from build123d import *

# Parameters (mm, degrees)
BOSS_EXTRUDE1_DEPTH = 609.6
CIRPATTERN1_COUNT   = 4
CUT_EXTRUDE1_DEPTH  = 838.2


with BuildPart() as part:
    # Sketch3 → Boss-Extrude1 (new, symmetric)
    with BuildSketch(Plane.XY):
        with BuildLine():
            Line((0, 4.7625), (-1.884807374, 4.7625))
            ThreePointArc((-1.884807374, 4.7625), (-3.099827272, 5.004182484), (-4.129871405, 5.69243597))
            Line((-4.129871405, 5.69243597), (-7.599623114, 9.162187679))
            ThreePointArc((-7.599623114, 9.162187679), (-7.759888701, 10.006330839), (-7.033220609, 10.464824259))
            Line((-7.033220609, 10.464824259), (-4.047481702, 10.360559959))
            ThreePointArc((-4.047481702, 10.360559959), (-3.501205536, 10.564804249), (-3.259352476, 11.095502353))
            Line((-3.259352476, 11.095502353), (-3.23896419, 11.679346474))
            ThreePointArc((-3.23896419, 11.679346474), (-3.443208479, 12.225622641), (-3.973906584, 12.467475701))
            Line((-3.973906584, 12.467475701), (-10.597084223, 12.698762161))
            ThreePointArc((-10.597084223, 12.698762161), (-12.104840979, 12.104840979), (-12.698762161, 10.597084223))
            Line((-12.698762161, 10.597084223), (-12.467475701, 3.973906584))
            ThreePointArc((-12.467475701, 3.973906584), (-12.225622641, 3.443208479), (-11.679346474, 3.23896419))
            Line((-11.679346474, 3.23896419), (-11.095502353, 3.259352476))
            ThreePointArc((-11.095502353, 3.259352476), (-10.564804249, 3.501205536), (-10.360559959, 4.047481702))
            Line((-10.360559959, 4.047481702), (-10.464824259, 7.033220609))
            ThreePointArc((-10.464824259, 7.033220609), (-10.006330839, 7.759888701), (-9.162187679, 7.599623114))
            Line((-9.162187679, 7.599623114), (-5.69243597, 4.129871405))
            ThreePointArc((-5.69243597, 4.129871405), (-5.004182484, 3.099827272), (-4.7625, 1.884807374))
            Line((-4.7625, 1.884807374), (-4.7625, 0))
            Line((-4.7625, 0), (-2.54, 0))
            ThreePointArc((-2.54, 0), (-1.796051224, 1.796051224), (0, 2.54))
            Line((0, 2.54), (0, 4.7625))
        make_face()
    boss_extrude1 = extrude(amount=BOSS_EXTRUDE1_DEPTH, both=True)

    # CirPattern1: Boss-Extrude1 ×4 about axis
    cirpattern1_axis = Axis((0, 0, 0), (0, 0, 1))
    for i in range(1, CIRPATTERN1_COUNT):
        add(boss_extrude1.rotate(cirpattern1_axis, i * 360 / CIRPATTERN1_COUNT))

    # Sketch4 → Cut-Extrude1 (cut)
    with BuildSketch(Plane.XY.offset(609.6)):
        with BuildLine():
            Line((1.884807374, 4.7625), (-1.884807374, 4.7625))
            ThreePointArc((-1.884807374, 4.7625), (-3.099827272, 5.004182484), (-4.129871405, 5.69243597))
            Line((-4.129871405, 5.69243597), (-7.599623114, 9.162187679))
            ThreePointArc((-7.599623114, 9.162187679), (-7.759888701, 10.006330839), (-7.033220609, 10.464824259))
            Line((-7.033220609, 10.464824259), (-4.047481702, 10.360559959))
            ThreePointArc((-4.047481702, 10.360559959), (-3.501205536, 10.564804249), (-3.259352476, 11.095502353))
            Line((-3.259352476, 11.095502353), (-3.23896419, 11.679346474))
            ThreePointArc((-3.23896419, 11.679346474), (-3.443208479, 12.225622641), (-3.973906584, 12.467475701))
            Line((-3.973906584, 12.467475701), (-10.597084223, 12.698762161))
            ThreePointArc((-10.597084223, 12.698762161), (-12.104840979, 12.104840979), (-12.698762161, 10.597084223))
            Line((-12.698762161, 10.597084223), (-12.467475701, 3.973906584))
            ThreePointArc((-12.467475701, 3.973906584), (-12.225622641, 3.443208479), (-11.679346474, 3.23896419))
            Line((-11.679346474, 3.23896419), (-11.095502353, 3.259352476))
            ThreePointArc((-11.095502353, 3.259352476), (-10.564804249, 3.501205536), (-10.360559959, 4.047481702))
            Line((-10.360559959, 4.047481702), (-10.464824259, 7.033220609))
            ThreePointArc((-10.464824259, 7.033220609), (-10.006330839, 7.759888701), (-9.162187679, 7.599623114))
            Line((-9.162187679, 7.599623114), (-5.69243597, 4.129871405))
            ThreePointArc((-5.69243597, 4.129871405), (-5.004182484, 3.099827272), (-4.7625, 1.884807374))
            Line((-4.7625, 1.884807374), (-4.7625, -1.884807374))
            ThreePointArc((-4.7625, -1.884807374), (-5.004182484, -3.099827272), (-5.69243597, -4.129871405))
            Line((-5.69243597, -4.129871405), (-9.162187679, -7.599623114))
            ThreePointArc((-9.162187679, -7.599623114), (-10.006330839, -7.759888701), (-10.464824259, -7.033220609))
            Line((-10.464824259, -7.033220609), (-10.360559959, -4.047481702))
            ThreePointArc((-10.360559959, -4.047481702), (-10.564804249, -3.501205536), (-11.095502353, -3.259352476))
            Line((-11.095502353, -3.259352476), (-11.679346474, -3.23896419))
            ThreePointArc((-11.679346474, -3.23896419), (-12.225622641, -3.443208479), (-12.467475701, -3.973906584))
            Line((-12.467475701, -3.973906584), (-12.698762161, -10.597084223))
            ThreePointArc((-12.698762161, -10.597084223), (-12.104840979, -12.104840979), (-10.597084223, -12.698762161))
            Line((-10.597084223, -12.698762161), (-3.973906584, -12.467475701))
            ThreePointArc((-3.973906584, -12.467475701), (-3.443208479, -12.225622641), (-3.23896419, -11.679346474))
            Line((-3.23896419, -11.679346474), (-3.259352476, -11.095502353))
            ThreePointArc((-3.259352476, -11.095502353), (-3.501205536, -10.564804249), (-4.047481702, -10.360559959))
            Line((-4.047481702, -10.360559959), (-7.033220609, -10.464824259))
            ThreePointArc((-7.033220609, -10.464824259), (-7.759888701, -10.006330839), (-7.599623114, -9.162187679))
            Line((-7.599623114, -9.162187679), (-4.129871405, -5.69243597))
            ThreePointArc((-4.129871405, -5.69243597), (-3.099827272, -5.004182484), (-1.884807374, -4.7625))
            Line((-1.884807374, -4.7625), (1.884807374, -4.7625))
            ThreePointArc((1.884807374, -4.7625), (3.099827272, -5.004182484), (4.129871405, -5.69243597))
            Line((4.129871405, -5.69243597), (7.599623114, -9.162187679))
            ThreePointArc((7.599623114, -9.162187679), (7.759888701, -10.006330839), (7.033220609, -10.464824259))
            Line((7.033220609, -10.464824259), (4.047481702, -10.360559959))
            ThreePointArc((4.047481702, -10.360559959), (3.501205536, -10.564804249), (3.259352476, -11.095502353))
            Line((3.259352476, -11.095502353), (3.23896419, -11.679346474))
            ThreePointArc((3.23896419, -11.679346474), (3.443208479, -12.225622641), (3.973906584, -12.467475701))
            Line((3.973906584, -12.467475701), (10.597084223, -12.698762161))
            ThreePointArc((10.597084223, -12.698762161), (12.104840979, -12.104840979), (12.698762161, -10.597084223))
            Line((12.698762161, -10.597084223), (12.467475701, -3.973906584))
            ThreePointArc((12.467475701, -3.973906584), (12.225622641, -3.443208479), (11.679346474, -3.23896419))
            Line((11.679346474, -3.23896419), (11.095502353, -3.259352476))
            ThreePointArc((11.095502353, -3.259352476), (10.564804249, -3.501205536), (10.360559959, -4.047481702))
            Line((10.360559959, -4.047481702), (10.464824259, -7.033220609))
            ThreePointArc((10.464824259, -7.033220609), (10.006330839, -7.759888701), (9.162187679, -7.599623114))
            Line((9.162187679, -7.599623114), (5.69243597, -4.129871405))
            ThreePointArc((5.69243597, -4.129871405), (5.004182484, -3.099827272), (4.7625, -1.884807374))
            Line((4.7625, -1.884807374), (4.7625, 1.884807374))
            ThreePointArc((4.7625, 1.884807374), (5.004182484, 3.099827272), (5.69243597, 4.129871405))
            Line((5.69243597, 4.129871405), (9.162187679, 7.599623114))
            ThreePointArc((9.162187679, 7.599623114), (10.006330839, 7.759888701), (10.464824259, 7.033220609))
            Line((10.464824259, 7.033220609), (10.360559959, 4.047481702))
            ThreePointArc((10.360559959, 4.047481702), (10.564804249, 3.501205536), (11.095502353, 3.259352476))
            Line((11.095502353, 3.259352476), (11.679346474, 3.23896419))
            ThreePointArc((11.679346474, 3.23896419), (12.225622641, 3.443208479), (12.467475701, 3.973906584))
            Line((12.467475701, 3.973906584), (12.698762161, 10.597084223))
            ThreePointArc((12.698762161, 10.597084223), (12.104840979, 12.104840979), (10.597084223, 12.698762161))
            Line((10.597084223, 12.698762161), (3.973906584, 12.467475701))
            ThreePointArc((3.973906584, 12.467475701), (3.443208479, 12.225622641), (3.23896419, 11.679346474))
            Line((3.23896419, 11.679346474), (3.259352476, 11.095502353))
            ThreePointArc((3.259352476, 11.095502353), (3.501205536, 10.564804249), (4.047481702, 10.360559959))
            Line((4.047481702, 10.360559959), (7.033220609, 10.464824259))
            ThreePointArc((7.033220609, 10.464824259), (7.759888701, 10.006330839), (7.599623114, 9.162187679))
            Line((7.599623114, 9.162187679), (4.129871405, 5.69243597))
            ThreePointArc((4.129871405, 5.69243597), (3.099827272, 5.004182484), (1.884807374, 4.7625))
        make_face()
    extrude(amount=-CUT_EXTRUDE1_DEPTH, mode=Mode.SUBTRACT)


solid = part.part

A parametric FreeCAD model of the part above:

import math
import FreeCAD as App
import Part
import Sketcher
from FreeCAD import Vector
Q = App.Units.Quantity

doc = App.newDocument("Part")
body = doc.addObject("PartDesign::Body", "Body")

# Sketch on XY plane
sketch1 = doc.addObject("Sketcher::SketchObject", "Sketch")
body.addObject(sketch1)
sketch1.AttachmentSupport = (doc.XY_Plane, [""])
sketch1.MapMode = "FlatFace"
sketch1.addGeometry(Part.LineSegment(Vector(0, 4.8, 0), Vector(-1.9, 4.8, 0)), False)
sketch1.addGeometry(Part.ArcOfCircle(Part.Circle(Vector(-1.9, 7.9, 0), Vector(0, 0, 1), 3.2), math.radians(-135), math.radians(-90)), False)
sketch1.addGeometry(Part.LineSegment(Vector(-4.1, 5.7, 0), Vector(-7.6, 9.2, 0)), False)
sketch1.addGeometry(Part.ArcOfCircle(Part.Circle(Vector(-7.1, 9.7, 0), Vector(0, 0, 1), 0.8), math.radians(88), math.radians(225)), False)
sketch1.addGeometry(Part.LineSegment(Vector(-7, 10.5, 0), Vector(-4, 10.4, 0)), False)
sketch1.addGeometry(Part.ArcOfCircle(Part.Circle(Vector(-4, 11.1, 0), Vector(0, 0, 1), 0.8), math.radians(-92), math.radians(-2)), False)
sketch1.addGeometry(Part.LineSegment(Vector(-3.3, 11.1, 0), Vector(-3.2, 11.7, 0)), False)
sketch1.addGeometry(Part.ArcOfCircle(Part.Circle(Vector(-4, 11.7, 0), Vector(0, 0, 1), 0.8), math.radians(-2), math.radians(88)), False)
sketch1.addGeometry(Part.LineSegment(Vector(-4, 12.5, 0), Vector(-10.6, 12.7, 0)), False)
sketch1.addGeometry(Part.ArcOfCircle(Part.Circle(Vector(-10.7, 10.7, 0), Vector(0, 0, 1), 2), math.radians(88), math.radians(182)), False)
sketch1.addGeometry(Part.LineSegment(Vector(-12.7, 10.6, 0), Vector(-12.5, 4, 0)), False)
sketch1.addGeometry(Part.ArcOfCircle(Part.Circle(Vector(-11.7, 4, 0), Vector(0, 0, 1), 0.8), math.radians(-178), math.radians(-88)), False)
sketch1.addGeometry(Part.LineSegment(Vector(-11.7, 3.2, 0), Vector(-11.1, 3.3, 0)), False)
sketch1.addGeometry(Part.ArcOfCircle(Part.Circle(Vector(-11.1, 4, 0), Vector(0, 0, 1), 0.8), math.radians(-88), math.radians(2)), False)
sketch1.addGeometry(Part.LineSegment(Vector(-10.4, 4, 0), Vector(-10.5, 7, 0)), False)
sketch1.addGeometry(Part.ArcOfCircle(Part.Circle(Vector(-9.7, 7.1, 0), Vector(0, 0, 1), 0.8), math.radians(45), math.radians(182)), False)
sketch1.addGeometry(Part.LineSegment(Vector(-9.2, 7.6, 0), Vector(-5.7, 4.1, 0)), False)
sketch1.addGeometry(Part.ArcOfCircle(Part.Circle(Vector(-7.9, 1.9, 0), Vector(0, 0, 1), 3.2), math.radians(0), math.radians(45)), False)
sketch1.addGeometry(Part.LineSegment(Vector(-4.8, 1.9, 0), Vector(-4.8, 0, 0)), False)
sketch1.addGeometry(Part.LineSegment(Vector(-4.8, 0, 0), Vector(-2.5, 0, 0)), False)
sketch1.addGeometry(Part.ArcOfCircle(Part.Circle(Vector(0, 0, 0), Vector(0, 0, 1), 2.5), math.radians(90), math.radians(180)), False)
sketch1.addGeometry(Part.LineSegment(Vector(0, 2.5, 0), Vector(0, 4.8, 0)), False)
sketch1.addConstraint(Sketcher.Constraint("Tangent", 0, 2, 1, 2))
sketch1.addConstraint(Sketcher.Constraint("Tangent", 1, 1, 2, 1))
sketch1.addConstraint(Sketcher.Constraint("Tangent", 2, 2, 3, 2))
sketch1.addConstraint(Sketcher.Constraint("Tangent", 3, 1, 4, 1))
sketch1.addConstraint(Sketcher.Constraint("Tangent", 4, 2, 5, 1))
sketch1.addConstraint(Sketcher.Constraint("Tangent", 5, 2, 6, 1))
sketch1.addConstraint(Sketcher.Constraint("Tangent", 6, 2, 7, 1))
sketch1.addConstraint(Sketcher.Constraint("Tangent", 7, 2, 8, 1))
sketch1.addConstraint(Sketcher.Constraint("Tangent", 8, 2, 9, 1))
sketch1.addConstraint(Sketcher.Constraint("Tangent", 9, 2, 10, 1))
sketch1.addConstraint(Sketcher.Constraint("Tangent", 10, 2, 11, 1))
sketch1.addConstraint(Sketcher.Constraint("Tangent", 11, 2, 12, 1))
sketch1.addConstraint(Sketcher.Constraint("Tangent", 12, 2, 13, 1))
sketch1.addConstraint(Sketcher.Constraint("Tangent", 13, 2, 14, 1))
sketch1.addConstraint(Sketcher.Constraint("Tangent", 14, 2, 15, 2))
sketch1.addConstraint(Sketcher.Constraint("Tangent", 15, 1, 16, 1))
sketch1.addConstraint(Sketcher.Constraint("Tangent", 16, 2, 17, 2))
sketch1.addConstraint(Sketcher.Constraint("Tangent", 17, 1, 18, 1))
sketch1.addConstraint(Sketcher.Constraint("Coincident", 18, 2, 19, 1))
sketch1.addConstraint(Sketcher.Constraint("Coincident", 19, 2, 20, 2))
sketch1.addConstraint(Sketcher.Constraint("Coincident", 20, 1, 21, 1))
sketch1.addConstraint(Sketcher.Constraint("Coincident", 21, 2, 0, 1))
sketch1.addConstraint(Sketcher.Constraint("Horizontal", 0))
sketch1.addConstraint(Sketcher.Constraint("Vertical", 18))
sketch1.addConstraint(Sketcher.Constraint("Horizontal", 19))
sketch1.addConstraint(Sketcher.Constraint("Vertical", 21))
sketch1.addConstraint(Sketcher.Constraint("Coincident", 20, 3, -1, 1))
sketch1.addConstraint(Sketcher.Constraint("Equal", 5, 7))
sketch1.addConstraint(Sketcher.Constraint("Equal", 7, 11))
sketch1.addConstraint(Sketcher.Constraint("Equal", 11, 13))
sketch1.addConstraint(Sketcher.Constraint("Equal", 3, 15))
sketch1.addConstraint(Sketcher.Constraint("Equal", 1, 17))
sketch1.addConstraint(Sketcher.Constraint("PointOnObject", 18, 2, -1))
sketch1.addConstraint(Sketcher.Constraint("PointOnObject", 20, 1, -2))
sketch1.addConstraint(Sketcher.Constraint("Perpendicular", 4, 6))
sketch1.addConstraint(Sketcher.Constraint("Perpendicular", 6, 8))
sketch1.addConstraint(Sketcher.Constraint("Perpendicular", 10, 12))
sketch1.addConstraint(Sketcher.Constraint("Perpendicular", 12, 14))
sketch1.addConstraint(Sketcher.Constraint("Parallel", 2, 16))
sketch1.addConstraint(Sketcher.Constraint("Equal", 0, 18))
sketch1.addConstraint(Sketcher.Constraint("Equal", 19, 21))
sketch1.addConstraint(Sketcher.Constraint("Equal", 8, 10))
sketch1.addConstraint(Sketcher.Constraint("Equal", 6, 12))
sketch1.addConstraint(Sketcher.Constraint("Equal", 4, 14))
sketch1.addConstraint(Sketcher.Constraint("Equal", 2, 16))
sketch1.addConstraint(Sketcher.Constraint("Radius", 20, Q("0.1 in")))
sketch1.addConstraint(Sketcher.Constraint("Radius", 5, Q("0.03 in")))
sketch1.addConstraint(Sketcher.Constraint("Radius", 9, Q("0.08 in")))
sketch1.addConstraint(Sketcher.Constraint("Angle", 2, Q("135 deg")))
sketch1.addConstraint(Sketcher.Constraint("Angle", 4, Q("-2 deg")))
sketch1.addConstraint(Sketcher.Constraint("Radius", 1, Q("0.125 in")))
sketch1.addConstraint(Sketcher.Constraint("DistanceX", 9, 3, -1, 1, Q("0.42 in")))
sketch1.addConstraint(Sketcher.Constraint("Distance", 6, Q("0.023 in")))
sketch1.addConstraint(Sketcher.Constraint("DistanceX", 19, 1, 19, 2, Q("0.0875 in")))
sketch1.addConstraint(Sketcher.Constraint("Radius", 3, 0.763339))
sketch1.addConstraint(Sketcher.Constraint("DistanceY", 11, 3, 1, 3, Q("0.155 in")))
sketch1.addConstraint(Sketcher.Constraint("DistanceY", 15, 3, 8, 2, 5.638901))
pad1 = doc.addObject("PartDesign::Pad", "Pad")
body.addObject(pad1)
pad1.Profile = sketch1
pad1.Length = Q("48 in")
pad1.Midplane = True
doc.recompute()

polarpattern = doc.addObject("PartDesign::PolarPattern", "PolarPattern")
body.addObject(polarpattern)
polarpattern.Originals = [pad1]
polarpattern.Axis = (doc.Z_Axis, [""])
polarpattern.Angle = 360
polarpattern.Occurrences = 4
body.Tip = polarpattern

# Sketch on XY plane
sketch2 = doc.addObject("Sketcher::SketchObject", "Sketch001")
body.addObject(sketch2)
sketch2.AttachmentSupport = (doc.XY_Plane, [""])
sketch2.MapMode = "FlatFace"
sketch2.AttachmentOffset = App.Placement(Vector(0, 0, 24 * 25.4), App.Rotation())
sketch2.addGeometry(Part.LineSegment(Vector(1.9, 4.8, 0), Vector(-1.9, 4.8, 0)), False)
sketch2.addGeometry(Part.ArcOfCircle(Part.Circle(Vector(-1.9, 7.9, 0), Vector(0, 0, 1), 3.2), math.radians(-135), math.radians(-90)), False)
sketch2.addGeometry(Part.LineSegment(Vector(-4.1, 5.7, 0), Vector(-7.6, 9.2, 0)), False)
sketch2.addGeometry(Part.ArcOfCircle(Part.Circle(Vector(-7.1, 9.7, 0), Vector(0, 0, 1), 0.8), math.radians(88), math.radians(225)), False)
sketch2.addGeometry(Part.LineSegment(Vector(-7, 10.5, 0), Vector(-4, 10.4, 0)), False)
sketch2.addGeometry(Part.ArcOfCircle(Part.Circle(Vector(-4, 11.1, 0), Vector(0, 0, 1), 0.8), math.radians(-92), math.radians(-2)), False)
sketch2.addGeometry(Part.LineSegment(Vector(-3.3, 11.1, 0), Vector(-3.2, 11.7, 0)), False)
sketch2.addGeometry(Part.ArcOfCircle(Part.Circle(Vector(-4, 11.7, 0), Vector(0, 0, 1), 0.8), math.radians(-2), math.radians(88)), False)
sketch2.addGeometry(Part.LineSegment(Vector(-4, 12.5, 0), Vector(-10.6, 12.7, 0)), False)
sketch2.addGeometry(Part.ArcOfCircle(Part.Circle(Vector(-10.7, 10.7, 0), Vector(0, 0, 1), 2), math.radians(88), math.radians(182)), False)
sketch2.addGeometry(Part.LineSegment(Vector(-12.7, 10.6, 0), Vector(-12.5, 4, 0)), False)
sketch2.addGeometry(Part.ArcOfCircle(Part.Circle(Vector(-11.7, 4, 0), Vector(0, 0, 1), 0.8), math.radians(-178), math.radians(-88)), False)
sketch2.addGeometry(Part.LineSegment(Vector(-11.7, 3.2, 0), Vector(-11.1, 3.3, 0)), False)
sketch2.addGeometry(Part.ArcOfCircle(Part.Circle(Vector(-11.1, 4, 0), Vector(0, 0, 1), 0.8), math.radians(-88), math.radians(2)), False)
sketch2.addGeometry(Part.LineSegment(Vector(-10.4, 4, 0), Vector(-10.5, 7, 0)), False)
sketch2.addGeometry(Part.ArcOfCircle(Part.Circle(Vector(-9.7, 7.1, 0), Vector(0, 0, 1), 0.8), math.radians(45), math.radians(182)), False)
sketch2.addGeometry(Part.LineSegment(Vector(-9.2, 7.6, 0), Vector(-5.7, 4.1, 0)), False)
sketch2.addGeometry(Part.ArcOfCircle(Part.Circle(Vector(-7.9, 1.9, 0), Vector(0, 0, 1), 3.2), math.radians(0), math.radians(45)), False)
sketch2.addGeometry(Part.LineSegment(Vector(-4.8, 1.9, 0), Vector(-4.8, -1.9, 0)), False)
sketch2.addGeometry(Part.ArcOfCircle(Part.Circle(Vector(-7.9, -1.9, 0), Vector(0, 0, 1), 3.2), math.radians(-45), math.radians(0)), False)
sketch2.addGeometry(Part.LineSegment(Vector(-5.7, -4.1, 0), Vector(-9.2, -7.6, 0)), False)
sketch2.addGeometry(Part.ArcOfCircle(Part.Circle(Vector(-9.7, -7.1, 0), Vector(0, 0, 1), 0.8), math.radians(178), math.radians(315)), False)
sketch2.addGeometry(Part.LineSegment(Vector(-10.5, -7, 0), Vector(-10.4, -4, 0)), False)
sketch2.addGeometry(Part.ArcOfCircle(Part.Circle(Vector(-11.1, -4, 0), Vector(0, 0, 1), 0.8), math.radians(-2), math.radians(88)), False)
sketch2.addGeometry(Part.LineSegment(Vector(-11.1, -3.3, 0), Vector(-11.7, -3.2, 0)), False)
sketch2.addGeometry(Part.ArcOfCircle(Part.Circle(Vector(-11.7, -4, 0), Vector(0, 0, 1), 0.8), math.radians(88), math.radians(178)), False)
sketch2.addGeometry(Part.LineSegment(Vector(-12.5, -4, 0), Vector(-12.7, -10.6, 0)), False)
sketch2.addGeometry(Part.ArcOfCircle(Part.Circle(Vector(-10.7, -10.7, 0), Vector(0, 0, 1), 2), math.radians(178), math.radians(272)), False)
sketch2.addGeometry(Part.LineSegment(Vector(-10.6, -12.7, 0), Vector(-4, -12.5, 0)), False)
sketch2.addGeometry(Part.ArcOfCircle(Part.Circle(Vector(-4, -11.7, 0), Vector(0, 0, 1), 0.8), math.radians(-88), math.radians(2)), False)
sketch2.addGeometry(Part.LineSegment(Vector(-3.2, -11.7, 0), Vector(-3.3, -11.1, 0)), False)
sketch2.addGeometry(Part.ArcOfCircle(Part.Circle(Vector(-4, -11.1, 0), Vector(0, 0, 1), 0.8), math.radians(2), math.radians(92)), False)
sketch2.addGeometry(Part.LineSegment(Vector(-4, -10.4, 0), Vector(-7, -10.5, 0)), False)
sketch2.addGeometry(Part.ArcOfCircle(Part.Circle(Vector(-7.1, -9.7, 0), Vector(0, 0, 1), 0.8), math.radians(135), math.radians(272)), False)
sketch2.addGeometry(Part.LineSegment(Vector(-7.6, -9.2, 0), Vector(-4.1, -5.7, 0)), False)
sketch2.addGeometry(Part.ArcOfCircle(Part.Circle(Vector(-1.9, -7.9, 0), Vector(0, 0, 1), 3.2), math.radians(90), math.radians(135)), False)
sketch2.addGeometry(Part.LineSegment(Vector(-1.9, -4.8, 0), Vector(1.9, -4.8, 0)), False)
sketch2.addGeometry(Part.ArcOfCircle(Part.Circle(Vector(1.9, -7.9, 0), Vector(0, 0, 1), 3.2), math.radians(45), math.radians(90)), False)
sketch2.addGeometry(Part.LineSegment(Vector(4.1, -5.7, 0), Vector(7.6, -9.2, 0)), False)
sketch2.addGeometry(Part.ArcOfCircle(Part.Circle(Vector(7.1, -9.7, 0), Vector(0, 0, 1), 0.8), math.radians(-92), math.radians(45)), False)
sketch2.addGeometry(Part.LineSegment(Vector(7, -10.5, 0), Vector(4, -10.4, 0)), False)
sketch2.addGeometry(Part.ArcOfCircle(Part.Circle(Vector(4, -11.1, 0), Vector(0, 0, 1), 0.8), math.radians(88), math.radians(178)), False)
sketch2.addGeometry(Part.LineSegment(Vector(3.3, -11.1, 0), Vector(3.2, -11.7, 0)), False)
sketch2.addGeometry(Part.ArcOfCircle(Part.Circle(Vector(4, -11.7, 0), Vector(0, 0, 1), 0.8), math.radians(178), math.radians(268)), False)
sketch2.addGeometry(Part.LineSegment(Vector(4, -12.5, 0), Vector(10.6, -12.7, 0)), False)
sketch2.addGeometry(Part.ArcOfCircle(Part.Circle(Vector(10.7, -10.7, 0), Vector(0, 0, 1), 2), math.radians(-92), math.radians(2)), False)
sketch2.addGeometry(Part.LineSegment(Vector(12.7, -10.6, 0), Vector(12.5, -4, 0)), False)
sketch2.addGeometry(Part.ArcOfCircle(Part.Circle(Vector(11.7, -4, 0), Vector(0, 0, 1), 0.8), math.radians(2), math.radians(92)), False)
sketch2.addGeometry(Part.LineSegment(Vector(11.7, -3.2, 0), Vector(11.1, -3.3, 0)), False)
sketch2.addGeometry(Part.ArcOfCircle(Part.Circle(Vector(11.1, -4, 0), Vector(0, 0, 1), 0.8), math.radians(92), math.radians(182)), False)
sketch2.addGeometry(Part.LineSegment(Vector(10.4, -4, 0), Vector(10.5, -7, 0)), False)
sketch2.addGeometry(Part.ArcOfCircle(Part.Circle(Vector(9.7, -7.1, 0), Vector(0, 0, 1), 0.8), math.radians(-135), math.radians(2)), False)
sketch2.addGeometry(Part.LineSegment(Vector(9.2, -7.6, 0), Vector(5.7, -4.1, 0)), False)
sketch2.addGeometry(Part.ArcOfCircle(Part.Circle(Vector(7.9, -1.9, 0), Vector(0, 0, 1), 3.2), math.radians(180), math.radians(225)), False)
sketch2.addGeometry(Part.LineSegment(Vector(4.8, -1.9, 0), Vector(4.8, 1.9, 0)), False)
sketch2.addGeometry(Part.ArcOfCircle(Part.Circle(Vector(7.9, 1.9, 0), Vector(0, 0, 1), 3.2), math.radians(135), math.radians(180)), False)
sketch2.addGeometry(Part.LineSegment(Vector(5.7, 4.1, 0), Vector(9.2, 7.6, 0)), False)
sketch2.addGeometry(Part.ArcOfCircle(Part.Circle(Vector(9.7, 7.1, 0), Vector(0, 0, 1), 0.8), math.radians(-2), math.radians(135)), False)
sketch2.addGeometry(Part.LineSegment(Vector(10.5, 7, 0), Vector(10.4, 4, 0)), False)
sketch2.addGeometry(Part.ArcOfCircle(Part.Circle(Vector(11.1, 4, 0), Vector(0, 0, 1), 0.8), math.radians(178), math.radians(268)), False)
sketch2.addGeometry(Part.LineSegment(Vector(11.1, 3.3, 0), Vector(11.7, 3.2, 0)), False)
sketch2.addGeometry(Part.ArcOfCircle(Part.Circle(Vector(11.7, 4, 0), Vector(0, 0, 1), 0.8), math.radians(-92), math.radians(-2)), False)
sketch2.addGeometry(Part.LineSegment(Vector(12.5, 4, 0), Vector(12.7, 10.6, 0)), False)
sketch2.addGeometry(Part.ArcOfCircle(Part.Circle(Vector(10.7, 10.7, 0), Vector(0, 0, 1), 2), math.radians(-2), math.radians(92)), False)
sketch2.addGeometry(Part.LineSegment(Vector(10.6, 12.7, 0), Vector(4, 12.5, 0)), False)
sketch2.addGeometry(Part.ArcOfCircle(Part.Circle(Vector(4, 11.7, 0), Vector(0, 0, 1), 0.8), math.radians(92), math.radians(182)), False)
sketch2.addGeometry(Part.LineSegment(Vector(3.2, 11.7, 0), Vector(3.3, 11.1, 0)), False)
sketch2.addGeometry(Part.ArcOfCircle(Part.Circle(Vector(4, 11.1, 0), Vector(0, 0, 1), 0.8), math.radians(-178), math.radians(-88)), False)
sketch2.addGeometry(Part.LineSegment(Vector(4, 10.4, 0), Vector(7, 10.5, 0)), False)
sketch2.addGeometry(Part.ArcOfCircle(Part.Circle(Vector(7.1, 9.7, 0), Vector(0, 0, 1), 0.8), math.radians(-45), math.radians(92)), False)
sketch2.addGeometry(Part.LineSegment(Vector(7.6, 9.2, 0), Vector(4.1, 5.7, 0)), False)
sketch2.addGeometry(Part.ArcOfCircle(Part.Circle(Vector(1.9, 7.9, 0), Vector(0, 0, 1), 3.2), math.radians(-90), math.radians(-45)), False)
sketch2.addConstraint(Sketcher.Constraint("Tangent", 0, 2, 1, 2))
sketch2.addConstraint(Sketcher.Constraint("Tangent", 1, 1, 2, 1))
sketch2.addConstraint(Sketcher.Constraint("Tangent", 2, 2, 3, 2))
sketch2.addConstraint(Sketcher.Constraint("Tangent", 3, 1, 4, 1))
sketch2.addConstraint(Sketcher.Constraint("Tangent", 4, 2, 5, 1))
sketch2.addConstraint(Sketcher.Constraint("Tangent", 5, 2, 6, 1))
sketch2.addConstraint(Sketcher.Constraint("Tangent", 6, 2, 7, 1))
sketch2.addConstraint(Sketcher.Constraint("Tangent", 7, 2, 8, 1))
sketch2.addConstraint(Sketcher.Constraint("Tangent", 8, 2, 9, 1))
sketch2.addConstraint(Sketcher.Constraint("Tangent", 9, 2, 10, 1))
sketch2.addConstraint(Sketcher.Constraint("Tangent", 10, 2, 11, 1))
sketch2.addConstraint(Sketcher.Constraint("Tangent", 11, 2, 12, 1))
sketch2.addConstraint(Sketcher.Constraint("Tangent", 12, 2, 13, 1))
sketch2.addConstraint(Sketcher.Constraint("Tangent", 13, 2, 14, 1))
sketch2.addConstraint(Sketcher.Constraint("Tangent", 14, 2, 15, 2))
sketch2.addConstraint(Sketcher.Constraint("Tangent", 15, 1, 16, 1))
sketch2.addConstraint(Sketcher.Constraint("Tangent", 16, 2, 17, 2))
sketch2.addConstraint(Sketcher.Constraint("Tangent", 17, 1, 18, 1))
sketch2.addConstraint(Sketcher.Constraint("Tangent", 18, 2, 19, 2))
sketch2.addConstraint(Sketcher.Constraint("Tangent", 19, 1, 20, 1))
sketch2.addConstraint(Sketcher.Constraint("Tangent", 20, 2, 21, 2))
sketch2.addConstraint(Sketcher.Constraint("Tangent", 21, 1, 22, 1))
sketch2.addConstraint(Sketcher.Constraint("Tangent", 22, 2, 23, 1))
sketch2.addConstraint(Sketcher.Constraint("Tangent", 23, 2, 24, 1))
sketch2.addConstraint(Sketcher.Constraint("Tangent", 24, 2, 25, 1))
sketch2.addConstraint(Sketcher.Constraint("Tangent", 25, 2, 26, 1))
sketch2.addConstraint(Sketcher.Constraint("Tangent", 26, 2, 27, 1))
sketch2.addConstraint(Sketcher.Constraint("Tangent", 27, 2, 28, 1))
sketch2.addConstraint(Sketcher.Constraint("Tangent", 28, 2, 29, 1))
sketch2.addConstraint(Sketcher.Constraint("Tangent", 29, 2, 30, 1))
sketch2.addConstraint(Sketcher.Constraint("Tangent", 30, 2, 31, 1))
sketch2.addConstraint(Sketcher.Constraint("Tangent", 31, 2, 32, 1))
sketch2.addConstraint(Sketcher.Constraint("Tangent", 32, 2, 33, 2))
sketch2.addConstraint(Sketcher.Constraint("Tangent", 33, 1, 34, 1))
sketch2.addConstraint(Sketcher.Constraint("Tangent", 34, 2, 35, 2))
sketch2.addConstraint(Sketcher.Constraint("Tangent", 35, 1, 36, 1))
sketch2.addConstraint(Sketcher.Constraint("Tangent", 36, 2, 37, 2))
sketch2.addConstraint(Sketcher.Constraint("Tangent", 37, 1, 38, 1))
sketch2.addConstraint(Sketcher.Constraint("Tangent", 38, 2, 39, 2))
sketch2.addConstraint(Sketcher.Constraint("Tangent", 39, 1, 40, 1))
sketch2.addConstraint(Sketcher.Constraint("Tangent", 40, 2, 41, 1))
sketch2.addConstraint(Sketcher.Constraint("Tangent", 41, 2, 42, 1))
sketch2.addConstraint(Sketcher.Constraint("Tangent", 42, 2, 43, 1))
sketch2.addConstraint(Sketcher.Constraint("Tangent", 43, 2, 44, 1))
sketch2.addConstraint(Sketcher.Constraint("Tangent", 44, 2, 45, 1))
sketch2.addConstraint(Sketcher.Constraint("Tangent", 45, 2, 46, 1))
sketch2.addConstraint(Sketcher.Constraint("Tangent", 46, 2, 47, 1))
sketch2.addConstraint(Sketcher.Constraint("Tangent", 47, 2, 48, 1))
sketch2.addConstraint(Sketcher.Constraint("Tangent", 48, 2, 49, 1))
sketch2.addConstraint(Sketcher.Constraint("Tangent", 49, 2, 50, 1))
sketch2.addConstraint(Sketcher.Constraint("Tangent", 50, 2, 51, 2))
sketch2.addConstraint(Sketcher.Constraint("Tangent", 51, 1, 52, 1))
sketch2.addConstraint(Sketcher.Constraint("Tangent", 52, 2, 53, 2))
sketch2.addConstraint(Sketcher.Constraint("Tangent", 53, 1, 54, 1))
sketch2.addConstraint(Sketcher.Constraint("Tangent", 54, 2, 55, 2))
sketch2.addConstraint(Sketcher.Constraint("Tangent", 55, 1, 56, 1))
sketch2.addConstraint(Sketcher.Constraint("Tangent", 56, 2, 57, 2))
sketch2.addConstraint(Sketcher.Constraint("Tangent", 57, 1, 58, 1))
sketch2.addConstraint(Sketcher.Constraint("Tangent", 58, 2, 59, 1))
sketch2.addConstraint(Sketcher.Constraint("Tangent", 59, 2, 60, 1))
sketch2.addConstraint(Sketcher.Constraint("Tangent", 60, 2, 61, 1))
sketch2.addConstraint(Sketcher.Constraint("Tangent", 61, 2, 62, 1))
sketch2.addConstraint(Sketcher.Constraint("Tangent", 62, 2, 63, 1))
sketch2.addConstraint(Sketcher.Constraint("Tangent", 63, 2, 64, 1))
sketch2.addConstraint(Sketcher.Constraint("Tangent", 64, 2, 65, 1))
sketch2.addConstraint(Sketcher.Constraint("Tangent", 65, 2, 66, 1))
sketch2.addConstraint(Sketcher.Constraint("Tangent", 66, 2, 67, 1))
sketch2.addConstraint(Sketcher.Constraint("Tangent", 67, 2, 68, 1))
sketch2.addConstraint(Sketcher.Constraint("Tangent", 68, 2, 69, 2))
sketch2.addConstraint(Sketcher.Constraint("Tangent", 69, 1, 70, 1))
sketch2.addConstraint(Sketcher.Constraint("Tangent", 70, 2, 71, 2))
sketch2.addConstraint(Sketcher.Constraint("Tangent", 71, 1, 0, 1))
sketch2.addConstraint(Sketcher.Constraint("Horizontal", 0))
sketch2.addConstraint(Sketcher.Constraint("Vertical", 18))
sketch2.addConstraint(Sketcher.Constraint("Horizontal", 36))
sketch2.addConstraint(Sketcher.Constraint("Vertical", 54))
sketch2.addConstraint(Sketcher.Constraint("Equal", 5, 7))
sketch2.addConstraint(Sketcher.Constraint("Equal", 7, 11))
sketch2.addConstraint(Sketcher.Constraint("Equal", 11, 13))
sketch2.addConstraint(Sketcher.Constraint("Equal", 3, 15))
sketch2.addConstraint(Sketcher.Constraint("Equal", 1, 17))
sketch2.addConstraint(Sketcher.Constraint("Equal", 17, 19))
sketch2.addConstraint(Sketcher.Constraint("Equal", 15, 21))
sketch2.addConstraint(Sketcher.Constraint("Equal", 13, 23))
sketch2.addConstraint(Sketcher.Constraint("Equal", 23, 25))
sketch2.addConstraint(Sketcher.Constraint("Equal", 9, 27))
sketch2.addConstraint(Sketcher.Constraint("Equal", 25, 29))
sketch2.addConstraint(Sketcher.Constraint("Equal", 29, 31))
sketch2.addConstraint(Sketcher.Constraint("Equal", 21, 33))
sketch2.addConstraint(Sketcher.Constraint("Equal", 19, 35))
sketch2.addConstraint(Sketcher.Constraint("Equal", 35, 37))
sketch2.addConstraint(Sketcher.Constraint("Equal", 33, 39))
sketch2.addConstraint(Sketcher.Constraint("Equal", 31, 41))
sketch2.addConstraint(Sketcher.Constraint("Equal", 41, 43))
sketch2.addConstraint(Sketcher.Constraint("Equal", 27, 45))
sketch2.addConstraint(Sketcher.Constraint("Equal", 43, 47))
sketch2.addConstraint(Sketcher.Constraint("Equal", 47, 49))
sketch2.addConstraint(Sketcher.Constraint("Equal", 39, 51))
sketch2.addConstraint(Sketcher.Constraint("Equal", 37, 53))
sketch2.addConstraint(Sketcher.Constraint("Equal", 53, 55))
sketch2.addConstraint(Sketcher.Constraint("Equal", 51, 57))
sketch2.addConstraint(Sketcher.Constraint("Equal", 49, 59))
sketch2.addConstraint(Sketcher.Constraint("Equal", 59, 61))
sketch2.addConstraint(Sketcher.Constraint("Equal", 45, 63))
sketch2.addConstraint(Sketcher.Constraint("Equal", 61, 65))
sketch2.addConstraint(Sketcher.Constraint("Equal", 65, 67))
sketch2.addConstraint(Sketcher.Constraint("Equal", 57, 69))
sketch2.addConstraint(Sketcher.Constraint("Equal", 55, 71))
sketch2.addConstraint(Sketcher.Constraint("Symmetric", 1, 3, 37, 3, -1, 1))
sketch2.addConstraint(Sketcher.Constraint("Symmetric", 3, 3, 39, 3, -1, 1))
sketch2.addConstraint(Sketcher.Constraint("Symmetric", 5, 3, 41, 3, -1, 1))
sketch2.addConstraint(Sketcher.Constraint("Symmetric", 7, 3, 43, 3, -1, 1))
sketch2.addConstraint(Sketcher.Constraint("Symmetric", 9, 3, 45, 3, -1, 1))
sketch2.addConstraint(Sketcher.Constraint("Symmetric", 11, 3, 47, 3, -1, 1))
sketch2.addConstraint(Sketcher.Constraint("Symmetric", 13, 3, 49, 3, -1, 1))
sketch2.addConstraint(Sketcher.Constraint("Symmetric", 15, 3, 51, 3, -1, 1))
sketch2.addConstraint(Sketcher.Constraint("Symmetric", 17, 3, 53, 3, -1, 1))
sketch2.addConstraint(Sketcher.Constraint("Symmetric", 21, 3, 57, 3, -1, 1))
sketch2.addConstraint(Sketcher.Constraint("Symmetric", 23, 3, 59, 3, -1, 1))
sketch2.addConstraint(Sketcher.Constraint("Symmetric", 25, 3, 61, 3, -1, 1))
sketch2.addConstraint(Sketcher.Constraint("Symmetric", 27, 3, 63, 3, -1, 1))
sketch2.addConstraint(Sketcher.Constraint("Symmetric", 29, 3, 65, 3, -1, 1))
sketch2.addConstraint(Sketcher.Constraint("Symmetric", 31, 3, 67, 3, -1, 1))
sketch2.addConstraint(Sketcher.Constraint("Symmetric", 33, 3, 69, 3, -1, 1))
sketch2.addConstraint(Sketcher.Constraint("Symmetric", 33, 3, 39, 3, -2))
sketch2.addConstraint(Sketcher.Constraint("Symmetric", 31, 3, 41, 3, -2))
sketch2.addConstraint(Sketcher.Constraint("Symmetric", 29, 3, 43, 3, -2))
sketch2.addConstraint(Sketcher.Constraint("Symmetric", 27, 3, 45, 3, -2))
sketch2.addConstraint(Sketcher.Constraint("Symmetric", 25, 3, 47, 3, -2))
sketch2.addConstraint(Sketcher.Constraint("Symmetric", 23, 3, 49, 3, -2))
sketch2.addConstraint(Sketcher.Constraint("Symmetric", 21, 3, 51, 3, -2))
sketch2.addConstraint(Sketcher.Constraint("Perpendicular", 4, 6))
sketch2.addConstraint(Sketcher.Constraint("Perpendicular", 6, 8))
sketch2.addConstraint(Sketcher.Constraint("Perpendicular", 10, 12))
sketch2.addConstraint(Sketcher.Constraint("Perpendicular", 12, 14))
sketch2.addConstraint(Sketcher.Constraint("Parallel", 2, 16))
sketch2.addConstraint(Sketcher.Constraint("Perpendicular", 16, 20))
sketch2.addConstraint(Sketcher.Constraint("Perpendicular", 8, 22))
sketch2.addConstraint(Sketcher.Constraint("Parallel", 20, 34))
sketch2.addConstraint(Sketcher.Constraint("Perpendicular", 52, 56))
sketch2.addConstraint(Sketcher.Constraint("Parallel", 56, 70))
sketch2.addConstraint(Sketcher.Constraint("Horizontal", 19, 3, 53, 3))
sketch2.addConstraint(Sketcher.Constraint("Equal", 36, 18))
sketch2.addConstraint(Sketcher.Constraint("Equal", 8, 10))
sketch2.addConstraint(Sketcher.Constraint("Equal", 6, 12))
sketch2.addConstraint(Sketcher.Constraint("Equal", 4, 14))
sketch2.addConstraint(Sketcher.Constraint("Equal", 2, 16))
sketch2.addConstraint(Sketcher.Constraint("Radius", 5, Q("0.03 in")))
sketch2.addConstraint(Sketcher.Constraint("Radius", 9, Q("0.08 in")))
sketch2.addConstraint(Sketcher.Constraint("Angle", 4, Q("-2 deg")))
sketch2.addConstraint(Sketcher.Constraint("Radius", 1, Q("0.125 in")))
sketch2.addConstraint(Sketcher.Constraint("DistanceX", 9, 3, -1, 1, Q("0.42 in")))
sketch2.addConstraint(Sketcher.Constraint("Distance", 6, Q("0.023 in")))
sketch2.addConstraint(Sketcher.Constraint("DistanceY", -1, 1, 1, 3, Q("0.3125 in")))
sketch2.addConstraint(Sketcher.Constraint("Radius", 3, 0.763339))
sketch2.addConstraint(Sketcher.Constraint("DistanceX", 7, 3, -1, 1, Q("0.1575 in")))
sketch2.addConstraint(Sketcher.Constraint("Distance", 2, 4.90697))
pocket1 = doc.addObject("PartDesign::Pocket", "Pocket")
body.addObject(pocket1)
pocket1.Profile = sketch2
pocket1.Length = Q("33 in")

doc.recompute()
